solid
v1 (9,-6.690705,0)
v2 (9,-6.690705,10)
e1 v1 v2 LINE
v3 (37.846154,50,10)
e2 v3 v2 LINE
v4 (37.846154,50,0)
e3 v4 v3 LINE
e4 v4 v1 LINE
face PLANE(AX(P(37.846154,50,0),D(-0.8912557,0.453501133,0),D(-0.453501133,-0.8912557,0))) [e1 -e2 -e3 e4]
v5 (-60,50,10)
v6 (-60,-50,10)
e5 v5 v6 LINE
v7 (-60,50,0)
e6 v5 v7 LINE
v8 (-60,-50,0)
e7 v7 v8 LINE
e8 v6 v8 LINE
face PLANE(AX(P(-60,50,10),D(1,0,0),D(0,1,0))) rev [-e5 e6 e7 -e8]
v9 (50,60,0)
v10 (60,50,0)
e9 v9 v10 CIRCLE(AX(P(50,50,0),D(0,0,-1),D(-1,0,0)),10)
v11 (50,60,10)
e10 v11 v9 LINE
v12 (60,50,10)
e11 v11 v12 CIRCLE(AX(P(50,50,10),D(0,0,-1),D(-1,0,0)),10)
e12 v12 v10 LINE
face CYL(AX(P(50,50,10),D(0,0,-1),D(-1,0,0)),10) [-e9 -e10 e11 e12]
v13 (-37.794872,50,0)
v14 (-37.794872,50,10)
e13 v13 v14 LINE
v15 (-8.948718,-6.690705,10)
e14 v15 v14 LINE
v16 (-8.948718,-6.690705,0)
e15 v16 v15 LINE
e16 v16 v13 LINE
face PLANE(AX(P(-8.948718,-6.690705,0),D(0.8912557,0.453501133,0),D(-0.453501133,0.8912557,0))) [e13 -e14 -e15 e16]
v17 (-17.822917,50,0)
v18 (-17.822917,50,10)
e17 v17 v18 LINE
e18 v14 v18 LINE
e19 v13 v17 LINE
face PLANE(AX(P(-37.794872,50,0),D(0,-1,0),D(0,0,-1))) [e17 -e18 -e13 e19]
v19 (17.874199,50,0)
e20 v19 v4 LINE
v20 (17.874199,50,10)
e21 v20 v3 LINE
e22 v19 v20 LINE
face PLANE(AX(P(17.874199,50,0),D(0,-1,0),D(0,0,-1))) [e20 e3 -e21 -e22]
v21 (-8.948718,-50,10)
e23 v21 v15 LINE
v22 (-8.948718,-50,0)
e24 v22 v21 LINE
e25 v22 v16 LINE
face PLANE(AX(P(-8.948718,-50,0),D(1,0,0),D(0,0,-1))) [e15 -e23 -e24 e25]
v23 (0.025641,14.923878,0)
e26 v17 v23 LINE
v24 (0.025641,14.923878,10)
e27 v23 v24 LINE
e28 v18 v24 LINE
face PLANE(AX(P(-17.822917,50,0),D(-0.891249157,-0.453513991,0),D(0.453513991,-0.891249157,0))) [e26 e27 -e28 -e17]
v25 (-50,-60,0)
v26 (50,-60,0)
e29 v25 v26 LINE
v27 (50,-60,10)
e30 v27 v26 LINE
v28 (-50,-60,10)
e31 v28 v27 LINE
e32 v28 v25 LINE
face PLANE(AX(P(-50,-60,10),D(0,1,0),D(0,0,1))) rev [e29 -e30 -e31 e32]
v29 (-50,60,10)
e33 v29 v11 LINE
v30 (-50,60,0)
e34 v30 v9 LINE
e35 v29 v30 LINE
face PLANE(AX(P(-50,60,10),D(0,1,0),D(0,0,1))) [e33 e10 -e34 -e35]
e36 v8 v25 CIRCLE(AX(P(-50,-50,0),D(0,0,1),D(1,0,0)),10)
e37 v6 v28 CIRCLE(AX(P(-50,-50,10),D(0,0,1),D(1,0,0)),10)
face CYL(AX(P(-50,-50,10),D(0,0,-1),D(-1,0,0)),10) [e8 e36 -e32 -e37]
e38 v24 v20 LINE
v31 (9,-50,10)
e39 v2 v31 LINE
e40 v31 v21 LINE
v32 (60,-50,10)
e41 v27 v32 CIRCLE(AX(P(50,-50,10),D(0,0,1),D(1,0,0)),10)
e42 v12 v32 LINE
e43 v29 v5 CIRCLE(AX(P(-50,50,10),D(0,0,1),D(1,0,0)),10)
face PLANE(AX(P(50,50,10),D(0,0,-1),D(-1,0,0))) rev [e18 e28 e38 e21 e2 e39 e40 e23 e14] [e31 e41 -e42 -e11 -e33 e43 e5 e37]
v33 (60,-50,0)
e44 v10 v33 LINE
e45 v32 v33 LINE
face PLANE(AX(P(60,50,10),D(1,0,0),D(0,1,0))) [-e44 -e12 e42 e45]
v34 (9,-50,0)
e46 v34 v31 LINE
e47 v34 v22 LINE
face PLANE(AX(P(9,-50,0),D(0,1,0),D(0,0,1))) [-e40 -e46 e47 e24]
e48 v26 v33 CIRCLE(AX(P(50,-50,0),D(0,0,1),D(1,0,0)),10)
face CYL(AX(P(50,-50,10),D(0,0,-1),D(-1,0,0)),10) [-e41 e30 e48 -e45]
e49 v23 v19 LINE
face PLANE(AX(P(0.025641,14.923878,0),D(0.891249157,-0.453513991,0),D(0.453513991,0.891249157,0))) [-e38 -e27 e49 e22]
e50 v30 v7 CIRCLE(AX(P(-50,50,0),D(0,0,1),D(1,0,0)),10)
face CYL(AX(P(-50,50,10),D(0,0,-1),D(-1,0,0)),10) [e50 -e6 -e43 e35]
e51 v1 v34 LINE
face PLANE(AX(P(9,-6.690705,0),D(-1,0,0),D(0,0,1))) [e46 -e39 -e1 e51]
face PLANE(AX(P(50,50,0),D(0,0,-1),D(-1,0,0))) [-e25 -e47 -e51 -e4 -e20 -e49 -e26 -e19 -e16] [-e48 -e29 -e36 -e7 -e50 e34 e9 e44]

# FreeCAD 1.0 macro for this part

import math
import FreeCAD as App
import Part
import Sketcher
from FreeCAD import Vector
Q = App.Units.Quantity

doc = App.newDocument("Part")
body = doc.addObject("PartDesign::Body", "Body")

# Sketch on XY plane
sketch1 = body.newObject("Sketcher::SketchObject", "Sketch")
sketch1.AttachmentSupport = (doc.getObject("XY_Plane"), [""])
sketch1.MapMode = "FlatFace"
sketch1.addGeometry(Part.LineSegment(Vector(50, 60, 0), Vector(-50, 60, 0)), False)
sketch1.addGeometry(Part.ArcOfCircle(Part.Circle(Vector(-50, 50, 0), Vector(0, 0, 1), 10), math.radians(90), math.radians(180)), False)
sketch1.addGeometry(Part.LineSegment(Vector(-60, 50, 0), Vector(-60, -50, 0)), False)
sketch1.addGeometry(Part.ArcOfCircle(Part.Circle(Vector(-50, -50, 0), Vector(0, 0, 1), 10), math.radians(180), math.radians(270)), False)
sketch1.addGeometry(Part.LineSegment(Vector(-50, -60, 0), Vector(50, -60, 0)), False)
sketch1.addGeometry(Part.ArcOfCircle(Part.Circle(Vector(50, -50, 0), Vector(0, 0, 1), 10), math.radians(-90), math.radians(0)), False)
sketch1.addGeometry(Part.LineSegment(Vector(60, -50, 0), Vector(60, 50, 0)), False)
sketch1.addGeometry(Part.ArcOfCircle(Part.Circle(Vector(50, 50, 0), Vector(0, 0, 1), 10), math.radians(0), math.radians(90)), False)
sketch1.addConstraint(Sketcher.Constraint("Tangent", 0, 2, 1, 1))
sketch1.addConstraint(Sketcher.Constraint("Tangent", 1, 2, 2, 1))
sketch1.addConstraint(Sketcher.Constraint("Tangent", 2, 2, 3, 1))
sketch1.addConstraint(Sketcher.Constraint("Tangent", 3, 2, 4, 1))
sketch1.addConstraint(Sketcher.Constraint("Tangent", 4, 2, 5, 1))
sketch1.addConstraint(Sketcher.Constraint("Tangent", 5, 2, 6, 1))
sketch1.addConstraint(Sketcher.Constraint("Tangent", 6, 2, 7, 1))
sketch1.addConstraint(Sketcher.Constraint("Tangent", 7, 2, 0, 1))
sketch1.addConstraint(Sketcher.Constraint("Horizontal", 0))
sketch1.addConstraint(Sketcher.Constraint("Vertical", 2))
sketch1.addConstraint(Sketcher.Constraint("Horizontal", 4))
sketch1.addConstraint(Sketcher.Constraint("Vertical", 6))
sketch1.addConstraint(Sketcher.Constraint("Equal", 1, 3))
sketch1.addConstraint(Sketcher.Constraint("Equal", 3, 5))
sketch1.addConstraint(Sketcher.Constraint("Equal", 5, 7))
sketch1.addConstraint(Sketcher.Constraint("Symmetric", 1, 3, 5, 3, -1, 1))
sketch1.addConstraint(Sketcher.Constraint("Equal", 4, 2))
sketch1.addConstraint(Sketcher.Constraint("Radius", 1, Q("10 mm")))
sketch1.addConstraint(Sketcher.Constraint("DistanceX", 0, 2, 0, 1, Q("100 mm")))
pad1 = body.newObject("PartDesign::Pad", "Pad")
pad1.Profile = sketch1
pad1.Length = 10

# Sketch on XY plane
sketch2 = body.newObject("Sketcher::SketchObject", "Sketch001")
sketch2.AttachmentSupport = (doc.getObject("XY_Plane"), [""])
sketch2.MapMode = "FlatFace"
sketch2.AttachmentOffset = App.Placement(Vector(0, 0, 10), App.Rotation())
sketch2.addGeometry(Part.LineSegment(Vector(-18, 50, 0), Vector(-38, 50, 0)), False)
sketch2.addGeometry(Part.LineSegment(Vector(-38, 50, 0), Vector(-9, -7, 0)), False)
sketch2.addGeometry(Part.LineSegment(Vector(-9, -7, 0), Vector(-9, -50, 0)), False)
sketch2.addGeometry(Part.LineSegment(Vector(-9, -50, 0), Vector(9, -50, 0)), False)
sketch2.addGeometry(Part.LineSegment(Vector(9, -50, 0), Vector(9, -7, 0)), False)
sketch2.addGeometry(Part.LineSegment(Vector(9, -7, 0), Vector(38, 50, 0)), False)
sketch2.addGeometry(Part.LineSegment(Vector(38, 50, 0), Vector(18, 50, 0)), False)
sketch2.addGeometry(Part.LineSegment(Vector(18, 50, 0), Vector(0, 15, 0)), False)
sketch2.addGeometry(Part.LineSegment(Vector(0, 15, 0), Vector(-18, 50, 0)), False)
sketch2.addConstraint(Sketcher.Constraint("Coincident", 0, 2, 1, 1))
sketch2.addConstraint(Sketcher.Constraint("Coincident", 1, 2, 2, 1))
sketch2.addConstraint(Sketcher.Constraint("Coincident", 2, 2, 3, 1))
sketch2.addConstraint(Sketcher.Constraint("Coincident", 3, 2, 4, 1))
sketch2.addConstraint(Sketcher.Constraint("Coincident", 4, 2, 5, 1))
sketch2.addConstraint(Sketcher.Constraint("Coincident", 5, 2, 6, 1))
sketch2.addConstraint(Sketcher.Constraint("Coincident", 6, 2, 7, 1))
sketch2.addConstraint(Sketcher.Constraint("Coincident", 7, 2, 8, 1))
sketch2.addConstraint(Sketcher.Constraint("Coincident", 8, 2, 0, 1))
sketch2.addConstraint(Sketcher.Constraint("Horizontal", 0))
sketch2.addConstraint(Sketcher.Constraint("Vertical", 2))
sketch2.addConstraint(Sketcher.Constraint("Horizontal", 3))
sketch2.addConstraint(Sketcher.Constraint("Vertical", 4))
sketch2.addConstraint(Sketcher.Constraint("Horizontal", 6))
sketch2.addConstraint(Sketcher.Constraint("Horizontal", 1, 2, 4, 2))
sketch2.addConstraint(Sketcher.Constraint("Horizontal", 0, 2, 5, 2))
sketch2.addConstraint(Sketcher.Constraint("Equal", 0, 6))
sketch2.addConstraint(Sketcher.Constraint("Equal", 1, 5))
sketch2.addConstraint(Sketcher.Constraint("Equal", 7, 8))
sketch2.addConstraint(Sketcher.Constraint("DistanceY", -1, 1, 0, 2, Q("50 mm")))
sketch2.addConstraint(Sketcher.Constraint("DistanceY", 2, 2, -1, 1, Q("50 mm")))
sketch2.addConstraint(Sketcher.Constraint("DistanceX", -1, 1, 3, 2, Q("9 mm")))
sketch2.addConstraint(Sketcher.Constraint("DistanceX", -1, 1, 6, 2, Q("17.874199 mm")))
sketch2.addConstraint(Sketcher.Constraint("DistanceX", 0, 2, 0, 1, Q("19.971955 mm")))
sketch2.addConstraint(Sketcher.Constraint("DistanceX", 3, 1, 3, 2, Q("17.948718 mm")))
sketch2.addConstraint(Sketcher.Constraint("DistanceY", 2, 2, 2, 1, Q("43.309295 mm")))
sketch2.addConstraint(Sketcher.Constraint("DistanceY", -1, 1, 7, 2, Q("14.923878 mm")))
pocket1 = body.newObject("PartDesign::Pocket", "Pocket")
pocket1.Profile = sketch2
pocket1.Length = 10

doc.recompute()
